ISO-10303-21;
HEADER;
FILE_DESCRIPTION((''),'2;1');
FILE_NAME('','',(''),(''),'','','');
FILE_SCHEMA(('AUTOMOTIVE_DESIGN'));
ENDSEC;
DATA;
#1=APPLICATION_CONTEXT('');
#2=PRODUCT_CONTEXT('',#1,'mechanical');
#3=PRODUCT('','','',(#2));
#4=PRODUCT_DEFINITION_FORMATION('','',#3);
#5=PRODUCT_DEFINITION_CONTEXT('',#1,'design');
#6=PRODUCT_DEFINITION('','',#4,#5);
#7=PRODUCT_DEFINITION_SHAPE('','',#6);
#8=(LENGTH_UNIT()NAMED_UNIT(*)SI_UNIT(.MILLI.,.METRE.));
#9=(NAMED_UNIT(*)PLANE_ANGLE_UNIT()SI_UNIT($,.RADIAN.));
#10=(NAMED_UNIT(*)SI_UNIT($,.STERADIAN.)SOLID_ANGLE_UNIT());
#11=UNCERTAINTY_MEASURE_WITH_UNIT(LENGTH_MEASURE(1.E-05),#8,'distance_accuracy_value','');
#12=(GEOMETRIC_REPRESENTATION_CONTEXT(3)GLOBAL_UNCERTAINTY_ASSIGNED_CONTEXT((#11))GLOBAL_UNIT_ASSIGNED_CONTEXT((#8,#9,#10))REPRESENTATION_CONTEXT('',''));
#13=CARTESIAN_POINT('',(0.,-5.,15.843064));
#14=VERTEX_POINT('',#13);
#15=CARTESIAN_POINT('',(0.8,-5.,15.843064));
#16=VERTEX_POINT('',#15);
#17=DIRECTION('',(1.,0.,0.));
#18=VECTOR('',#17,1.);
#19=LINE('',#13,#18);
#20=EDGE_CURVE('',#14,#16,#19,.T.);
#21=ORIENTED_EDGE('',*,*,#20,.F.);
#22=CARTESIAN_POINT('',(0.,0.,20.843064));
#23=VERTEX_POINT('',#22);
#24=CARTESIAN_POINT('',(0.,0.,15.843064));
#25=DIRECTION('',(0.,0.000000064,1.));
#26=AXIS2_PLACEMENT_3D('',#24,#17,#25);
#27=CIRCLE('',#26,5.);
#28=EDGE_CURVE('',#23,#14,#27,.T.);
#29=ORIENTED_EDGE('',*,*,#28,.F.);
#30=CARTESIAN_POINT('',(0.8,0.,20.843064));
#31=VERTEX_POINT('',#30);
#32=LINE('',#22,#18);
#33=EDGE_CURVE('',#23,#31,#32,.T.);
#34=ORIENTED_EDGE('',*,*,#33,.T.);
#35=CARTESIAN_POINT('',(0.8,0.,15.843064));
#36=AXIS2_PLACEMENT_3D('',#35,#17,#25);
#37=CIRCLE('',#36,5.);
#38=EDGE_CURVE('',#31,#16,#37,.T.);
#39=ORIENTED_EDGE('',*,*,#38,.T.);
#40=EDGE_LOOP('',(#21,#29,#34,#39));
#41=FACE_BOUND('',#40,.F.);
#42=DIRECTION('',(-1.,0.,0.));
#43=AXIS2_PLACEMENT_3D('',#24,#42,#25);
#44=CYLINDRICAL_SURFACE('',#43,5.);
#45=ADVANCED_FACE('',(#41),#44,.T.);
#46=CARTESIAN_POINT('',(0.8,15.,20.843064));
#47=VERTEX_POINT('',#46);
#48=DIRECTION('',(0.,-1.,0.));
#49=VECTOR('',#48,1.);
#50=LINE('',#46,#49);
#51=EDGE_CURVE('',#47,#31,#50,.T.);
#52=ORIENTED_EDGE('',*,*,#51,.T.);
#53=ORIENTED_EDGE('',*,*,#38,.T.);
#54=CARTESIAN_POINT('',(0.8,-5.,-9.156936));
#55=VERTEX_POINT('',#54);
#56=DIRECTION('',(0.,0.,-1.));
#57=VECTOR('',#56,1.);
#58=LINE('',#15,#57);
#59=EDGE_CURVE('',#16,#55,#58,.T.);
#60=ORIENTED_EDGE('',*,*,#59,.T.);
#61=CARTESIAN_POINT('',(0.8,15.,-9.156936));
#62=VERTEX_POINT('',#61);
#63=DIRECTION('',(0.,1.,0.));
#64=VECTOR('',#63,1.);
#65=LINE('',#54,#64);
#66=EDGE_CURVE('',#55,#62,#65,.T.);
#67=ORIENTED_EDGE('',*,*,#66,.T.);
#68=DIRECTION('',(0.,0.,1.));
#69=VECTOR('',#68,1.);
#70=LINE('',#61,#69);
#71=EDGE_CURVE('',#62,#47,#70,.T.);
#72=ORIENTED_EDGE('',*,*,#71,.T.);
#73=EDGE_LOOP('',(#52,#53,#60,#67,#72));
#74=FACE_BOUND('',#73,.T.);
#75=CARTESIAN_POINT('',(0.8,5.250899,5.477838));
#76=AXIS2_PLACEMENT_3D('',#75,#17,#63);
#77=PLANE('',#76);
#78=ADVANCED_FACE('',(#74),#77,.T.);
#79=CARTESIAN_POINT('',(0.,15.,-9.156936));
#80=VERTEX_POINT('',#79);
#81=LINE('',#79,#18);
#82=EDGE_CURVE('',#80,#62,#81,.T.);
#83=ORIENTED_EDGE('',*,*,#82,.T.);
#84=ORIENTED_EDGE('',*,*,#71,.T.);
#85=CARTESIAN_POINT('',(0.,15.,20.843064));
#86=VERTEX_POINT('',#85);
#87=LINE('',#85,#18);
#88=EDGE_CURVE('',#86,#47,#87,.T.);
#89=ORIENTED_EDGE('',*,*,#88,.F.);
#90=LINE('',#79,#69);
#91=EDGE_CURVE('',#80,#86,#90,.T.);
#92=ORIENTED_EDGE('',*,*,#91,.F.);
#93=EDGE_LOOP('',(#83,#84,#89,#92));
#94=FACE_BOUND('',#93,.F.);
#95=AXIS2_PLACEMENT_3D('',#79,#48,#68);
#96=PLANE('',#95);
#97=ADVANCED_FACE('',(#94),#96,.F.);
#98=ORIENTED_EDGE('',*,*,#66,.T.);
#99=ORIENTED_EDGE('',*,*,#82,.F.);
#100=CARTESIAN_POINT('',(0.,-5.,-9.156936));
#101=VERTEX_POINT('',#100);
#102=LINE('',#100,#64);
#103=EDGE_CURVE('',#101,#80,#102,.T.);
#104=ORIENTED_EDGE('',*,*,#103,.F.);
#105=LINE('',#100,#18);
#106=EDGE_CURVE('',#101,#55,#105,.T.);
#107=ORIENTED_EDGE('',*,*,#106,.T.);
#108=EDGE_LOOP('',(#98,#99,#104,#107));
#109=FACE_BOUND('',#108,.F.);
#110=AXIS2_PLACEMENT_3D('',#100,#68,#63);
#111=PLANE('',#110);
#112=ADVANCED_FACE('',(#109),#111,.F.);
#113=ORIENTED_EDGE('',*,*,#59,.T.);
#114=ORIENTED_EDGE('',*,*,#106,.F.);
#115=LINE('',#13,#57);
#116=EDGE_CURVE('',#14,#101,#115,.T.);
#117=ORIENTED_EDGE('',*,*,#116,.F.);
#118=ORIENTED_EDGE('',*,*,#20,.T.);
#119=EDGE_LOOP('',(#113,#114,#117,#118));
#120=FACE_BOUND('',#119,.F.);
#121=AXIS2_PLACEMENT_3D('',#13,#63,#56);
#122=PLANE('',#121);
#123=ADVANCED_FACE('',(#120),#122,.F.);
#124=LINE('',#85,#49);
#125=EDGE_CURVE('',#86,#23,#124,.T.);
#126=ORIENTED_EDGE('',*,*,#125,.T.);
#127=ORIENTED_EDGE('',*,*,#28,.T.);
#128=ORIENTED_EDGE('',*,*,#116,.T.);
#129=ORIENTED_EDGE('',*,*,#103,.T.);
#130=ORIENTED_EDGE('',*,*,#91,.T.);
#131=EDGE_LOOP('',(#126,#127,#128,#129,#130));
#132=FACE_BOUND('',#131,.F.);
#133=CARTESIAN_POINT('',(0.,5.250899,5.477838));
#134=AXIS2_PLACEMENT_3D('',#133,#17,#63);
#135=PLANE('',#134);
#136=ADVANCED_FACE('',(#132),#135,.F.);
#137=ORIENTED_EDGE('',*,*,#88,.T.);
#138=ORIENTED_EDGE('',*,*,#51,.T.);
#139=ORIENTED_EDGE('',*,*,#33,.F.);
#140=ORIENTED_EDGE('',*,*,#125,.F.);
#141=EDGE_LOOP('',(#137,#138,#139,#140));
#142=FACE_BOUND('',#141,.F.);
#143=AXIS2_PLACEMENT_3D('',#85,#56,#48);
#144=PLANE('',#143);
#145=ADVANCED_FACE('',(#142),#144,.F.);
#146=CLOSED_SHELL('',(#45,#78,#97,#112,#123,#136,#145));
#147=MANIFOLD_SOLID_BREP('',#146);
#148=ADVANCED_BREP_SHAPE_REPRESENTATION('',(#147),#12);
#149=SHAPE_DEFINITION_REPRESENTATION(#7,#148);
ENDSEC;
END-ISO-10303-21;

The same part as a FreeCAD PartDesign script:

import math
import FreeCAD as App
import Part
import Sketcher

doc = App.newDocument("Part")
body = doc.addObject("PartDesign::Body", "Body")

sketch1 = body.newObject("Sketcher::SketchObject", "Sketch")
sketch1.AttachmentSupport = (doc.getObject("YZ_Plane"), [""])
sketch1.MapMode = "FlatFace"
sketch1.addGeometry([
    Part.ArcOfCircle(Part.Circle(App.Vector(0, 15.8, 0), App.Vector(0, 0, 1), 5), math.radians(90), math.radians(180)),
    Part.LineSegment(App.Vector(-5, 15.8, 0), App.Vector(-5, -9.2, 0)),
    Part.LineSegment(App.Vector(-5, -9.2, 0), App.Vector(15, -9.2, 0)),
    Part.LineSegment(App.Vector(15, -9.2, 0), App.Vector(15, 20.8, 0)),
    Part.LineSegment(App.Vector(15, 20.8, 0), App.Vector(0, 20.8, 0)),
], False)
sketch1.addConstraint([
    Sketcher.Constraint("Tangent", 0, 2, 1, 1),
    Sketcher.Constraint("Coincident", 1, 2, 2, 1),
    Sketcher.Constraint("Coincident", 2, 2, 3, 1),
    Sketcher.Constraint("Coincident", 3, 2, 4, 1),
    Sketcher.Constraint("Tangent", 4, 2, 0, 1),
    Sketcher.Constraint("Vertical", 1),
    Sketcher.Constraint("Horizontal", 2),
    Sketcher.Constraint("Vertical", 3),
    Sketcher.Constraint("Horizontal", 4),
    Sketcher.Constraint("PointOnObject", 0, 3, -2),
    Sketcher.Constraint("Radius", 0, 5.0),
    Sketcher.Constraint("DistanceX", 2, 1, 2, 2, 20.0),
    Sketcher.Constraint("DistanceY", 1, 2, 1, 1, 25.0),
    Sketcher.Constraint("DistanceY", -1, 1, 0, 3, 15.843064),
])
pad1 = body.newObject("PartDesign::Pad", "Pad")
pad1.Profile = sketch1
pad1.Length = 0.8

doc.recompute()
